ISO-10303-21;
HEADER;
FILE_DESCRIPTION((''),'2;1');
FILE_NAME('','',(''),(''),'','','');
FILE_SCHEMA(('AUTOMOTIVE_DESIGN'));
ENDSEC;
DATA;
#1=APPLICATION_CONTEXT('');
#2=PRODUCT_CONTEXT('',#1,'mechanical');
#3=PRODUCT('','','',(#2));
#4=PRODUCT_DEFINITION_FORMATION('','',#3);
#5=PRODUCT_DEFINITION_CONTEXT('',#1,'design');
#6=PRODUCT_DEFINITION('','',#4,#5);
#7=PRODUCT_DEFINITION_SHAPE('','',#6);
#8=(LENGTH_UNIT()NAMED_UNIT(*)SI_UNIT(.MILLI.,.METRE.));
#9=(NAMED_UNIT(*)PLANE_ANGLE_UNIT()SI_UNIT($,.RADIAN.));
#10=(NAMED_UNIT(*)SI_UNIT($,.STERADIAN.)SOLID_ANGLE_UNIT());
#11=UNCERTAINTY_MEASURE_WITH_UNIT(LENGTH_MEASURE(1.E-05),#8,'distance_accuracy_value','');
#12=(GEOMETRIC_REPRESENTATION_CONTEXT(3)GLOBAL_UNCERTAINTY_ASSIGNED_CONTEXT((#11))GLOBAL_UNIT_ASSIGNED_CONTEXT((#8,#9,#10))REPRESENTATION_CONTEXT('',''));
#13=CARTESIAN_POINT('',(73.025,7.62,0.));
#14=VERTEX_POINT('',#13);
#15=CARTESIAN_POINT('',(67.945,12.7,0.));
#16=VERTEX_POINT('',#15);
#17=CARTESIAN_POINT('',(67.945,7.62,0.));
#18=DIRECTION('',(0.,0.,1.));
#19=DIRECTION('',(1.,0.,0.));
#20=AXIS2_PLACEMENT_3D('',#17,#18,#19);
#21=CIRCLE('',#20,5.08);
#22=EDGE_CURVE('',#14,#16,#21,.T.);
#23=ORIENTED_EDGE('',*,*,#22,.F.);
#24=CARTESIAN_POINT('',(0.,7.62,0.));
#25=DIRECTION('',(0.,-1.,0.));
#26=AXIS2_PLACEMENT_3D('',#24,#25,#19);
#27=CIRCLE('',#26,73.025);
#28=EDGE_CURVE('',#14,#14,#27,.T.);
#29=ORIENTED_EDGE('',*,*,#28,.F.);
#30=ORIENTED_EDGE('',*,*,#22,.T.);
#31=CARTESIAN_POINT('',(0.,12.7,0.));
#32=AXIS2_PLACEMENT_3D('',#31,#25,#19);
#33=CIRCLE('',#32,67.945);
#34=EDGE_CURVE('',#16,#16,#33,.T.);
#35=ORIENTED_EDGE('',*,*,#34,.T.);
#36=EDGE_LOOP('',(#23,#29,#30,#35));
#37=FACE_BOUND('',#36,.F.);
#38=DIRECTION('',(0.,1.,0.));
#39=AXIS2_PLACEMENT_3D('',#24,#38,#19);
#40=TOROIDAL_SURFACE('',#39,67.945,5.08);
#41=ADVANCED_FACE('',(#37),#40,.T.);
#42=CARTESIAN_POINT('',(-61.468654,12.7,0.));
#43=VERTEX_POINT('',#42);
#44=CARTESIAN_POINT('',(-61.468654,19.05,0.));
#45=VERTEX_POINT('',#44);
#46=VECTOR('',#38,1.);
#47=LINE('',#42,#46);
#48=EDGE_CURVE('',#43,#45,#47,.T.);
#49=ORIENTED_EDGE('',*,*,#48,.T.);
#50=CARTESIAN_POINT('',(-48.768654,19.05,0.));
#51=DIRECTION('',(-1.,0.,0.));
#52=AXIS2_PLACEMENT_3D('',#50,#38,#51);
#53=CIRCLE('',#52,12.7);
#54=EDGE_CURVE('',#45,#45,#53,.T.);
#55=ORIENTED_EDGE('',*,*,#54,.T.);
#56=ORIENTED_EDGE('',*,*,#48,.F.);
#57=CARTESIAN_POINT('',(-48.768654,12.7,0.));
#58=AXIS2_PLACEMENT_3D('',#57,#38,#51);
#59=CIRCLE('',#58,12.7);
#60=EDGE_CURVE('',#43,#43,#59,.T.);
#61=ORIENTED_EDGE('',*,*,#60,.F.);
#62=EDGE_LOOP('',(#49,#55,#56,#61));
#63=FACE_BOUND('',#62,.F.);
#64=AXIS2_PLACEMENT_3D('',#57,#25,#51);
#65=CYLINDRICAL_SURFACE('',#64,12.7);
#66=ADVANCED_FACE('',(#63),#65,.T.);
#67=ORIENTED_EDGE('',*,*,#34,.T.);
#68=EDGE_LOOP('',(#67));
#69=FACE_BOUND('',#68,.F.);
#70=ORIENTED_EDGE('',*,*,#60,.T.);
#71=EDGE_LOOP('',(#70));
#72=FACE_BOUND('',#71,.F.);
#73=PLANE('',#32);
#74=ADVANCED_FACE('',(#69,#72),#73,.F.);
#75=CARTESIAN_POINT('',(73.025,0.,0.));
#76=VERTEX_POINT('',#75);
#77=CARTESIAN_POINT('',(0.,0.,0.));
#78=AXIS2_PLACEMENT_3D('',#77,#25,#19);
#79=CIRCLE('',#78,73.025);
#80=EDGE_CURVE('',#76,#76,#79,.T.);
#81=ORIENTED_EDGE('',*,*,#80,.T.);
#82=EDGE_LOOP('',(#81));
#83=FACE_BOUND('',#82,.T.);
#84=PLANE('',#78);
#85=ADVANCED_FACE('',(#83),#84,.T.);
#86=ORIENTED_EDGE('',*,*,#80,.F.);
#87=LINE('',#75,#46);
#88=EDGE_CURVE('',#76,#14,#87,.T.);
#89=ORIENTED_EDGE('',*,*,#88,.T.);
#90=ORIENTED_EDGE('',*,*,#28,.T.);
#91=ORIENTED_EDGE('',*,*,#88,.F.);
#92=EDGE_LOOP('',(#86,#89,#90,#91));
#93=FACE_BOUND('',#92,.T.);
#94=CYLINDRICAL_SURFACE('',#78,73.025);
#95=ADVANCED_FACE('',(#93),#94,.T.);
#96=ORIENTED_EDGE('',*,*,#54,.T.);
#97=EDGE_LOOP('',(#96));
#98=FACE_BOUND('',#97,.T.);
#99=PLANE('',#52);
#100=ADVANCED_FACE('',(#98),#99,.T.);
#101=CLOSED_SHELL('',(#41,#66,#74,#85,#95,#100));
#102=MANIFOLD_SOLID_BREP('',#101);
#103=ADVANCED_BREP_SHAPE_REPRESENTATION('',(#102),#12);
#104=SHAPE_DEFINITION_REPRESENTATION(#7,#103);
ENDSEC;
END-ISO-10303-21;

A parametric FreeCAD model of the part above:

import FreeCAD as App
import Part
import Sketcher
from FreeCAD import Vector
Q = App.Units.Quantity


def edges_at(feature, points):
    """Names of the edges that pass closest to the given points."""
    edges = feature.Shape.Edges
    near = lambda p: min(range(len(edges)), key=lambda i: edges[i].distToShape(Part.Vertex(*p))[0])
    return sorted({f"Edge{near(p) + 1}" for p in points})

doc = App.newDocument("Part")
body = doc.addObject("PartDesign::Body", "Body")

sketch1 = body.newObject("Sketcher::SketchObject", "Sketch")
sketch1.AttachmentSupport = (doc.getObject("XZ_Plane"), [""])
sketch1.MapMode = "FlatFace"
sketch1.addGeometry(Part.Circle(Vector(0, 0, 0), Vector(0, 0, 1), 73), False)
sketch1.addConstraint([
    Sketcher.Constraint("Coincident", 0, 3, -1, 1),
    Sketcher.Constraint("Diameter", 0, Q("5.75 in")),
])
pad1 = body.newObject("PartDesign::Pad", "Pad")
pad1.Profile = sketch1
pad1.Length = Q("0.5 in")
pad1.Reversed = True
doc.recompute()

fillet = body.newObject("PartDesign::Fillet", "Fillet")
fillet.Base = (pad1, edges_at(pad1, [(-73.025, 12.7, 0)]))
fillet.Radius = Q("0.2 in")

sketch2 = body.newObject("Sketcher::SketchObject", "Sketch001")
sketch2.AttachmentSupport = (doc.getObject("XZ_Plane"), [""])
sketch2.MapMode = "FlatFace"
sketch2.AttachmentOffset = App.Placement(Vector(0, 0, -0.5 * 25.4), App.Rotation())
sketch2.addGeometry(Part.Circle(Vector(-49, 0, 0), Vector(0, 0, 1), 13), False)
sketch2.addConstraint([
    Sketcher.Constraint("PointOnObject", 0, 3, -1),
    Sketcher.Constraint("Diameter", 0, Q("1 in")),
    Sketcher.Constraint("DistanceX", 0, 3, -1, 1, Q("48.768654 mm")),
])
pad2 = body.newObject("PartDesign::Pad", "Pad001")
pad2.Profile = sketch2
pad2.Length = Q("0.25 in")
pad2.Reversed = True

doc.recompute()
